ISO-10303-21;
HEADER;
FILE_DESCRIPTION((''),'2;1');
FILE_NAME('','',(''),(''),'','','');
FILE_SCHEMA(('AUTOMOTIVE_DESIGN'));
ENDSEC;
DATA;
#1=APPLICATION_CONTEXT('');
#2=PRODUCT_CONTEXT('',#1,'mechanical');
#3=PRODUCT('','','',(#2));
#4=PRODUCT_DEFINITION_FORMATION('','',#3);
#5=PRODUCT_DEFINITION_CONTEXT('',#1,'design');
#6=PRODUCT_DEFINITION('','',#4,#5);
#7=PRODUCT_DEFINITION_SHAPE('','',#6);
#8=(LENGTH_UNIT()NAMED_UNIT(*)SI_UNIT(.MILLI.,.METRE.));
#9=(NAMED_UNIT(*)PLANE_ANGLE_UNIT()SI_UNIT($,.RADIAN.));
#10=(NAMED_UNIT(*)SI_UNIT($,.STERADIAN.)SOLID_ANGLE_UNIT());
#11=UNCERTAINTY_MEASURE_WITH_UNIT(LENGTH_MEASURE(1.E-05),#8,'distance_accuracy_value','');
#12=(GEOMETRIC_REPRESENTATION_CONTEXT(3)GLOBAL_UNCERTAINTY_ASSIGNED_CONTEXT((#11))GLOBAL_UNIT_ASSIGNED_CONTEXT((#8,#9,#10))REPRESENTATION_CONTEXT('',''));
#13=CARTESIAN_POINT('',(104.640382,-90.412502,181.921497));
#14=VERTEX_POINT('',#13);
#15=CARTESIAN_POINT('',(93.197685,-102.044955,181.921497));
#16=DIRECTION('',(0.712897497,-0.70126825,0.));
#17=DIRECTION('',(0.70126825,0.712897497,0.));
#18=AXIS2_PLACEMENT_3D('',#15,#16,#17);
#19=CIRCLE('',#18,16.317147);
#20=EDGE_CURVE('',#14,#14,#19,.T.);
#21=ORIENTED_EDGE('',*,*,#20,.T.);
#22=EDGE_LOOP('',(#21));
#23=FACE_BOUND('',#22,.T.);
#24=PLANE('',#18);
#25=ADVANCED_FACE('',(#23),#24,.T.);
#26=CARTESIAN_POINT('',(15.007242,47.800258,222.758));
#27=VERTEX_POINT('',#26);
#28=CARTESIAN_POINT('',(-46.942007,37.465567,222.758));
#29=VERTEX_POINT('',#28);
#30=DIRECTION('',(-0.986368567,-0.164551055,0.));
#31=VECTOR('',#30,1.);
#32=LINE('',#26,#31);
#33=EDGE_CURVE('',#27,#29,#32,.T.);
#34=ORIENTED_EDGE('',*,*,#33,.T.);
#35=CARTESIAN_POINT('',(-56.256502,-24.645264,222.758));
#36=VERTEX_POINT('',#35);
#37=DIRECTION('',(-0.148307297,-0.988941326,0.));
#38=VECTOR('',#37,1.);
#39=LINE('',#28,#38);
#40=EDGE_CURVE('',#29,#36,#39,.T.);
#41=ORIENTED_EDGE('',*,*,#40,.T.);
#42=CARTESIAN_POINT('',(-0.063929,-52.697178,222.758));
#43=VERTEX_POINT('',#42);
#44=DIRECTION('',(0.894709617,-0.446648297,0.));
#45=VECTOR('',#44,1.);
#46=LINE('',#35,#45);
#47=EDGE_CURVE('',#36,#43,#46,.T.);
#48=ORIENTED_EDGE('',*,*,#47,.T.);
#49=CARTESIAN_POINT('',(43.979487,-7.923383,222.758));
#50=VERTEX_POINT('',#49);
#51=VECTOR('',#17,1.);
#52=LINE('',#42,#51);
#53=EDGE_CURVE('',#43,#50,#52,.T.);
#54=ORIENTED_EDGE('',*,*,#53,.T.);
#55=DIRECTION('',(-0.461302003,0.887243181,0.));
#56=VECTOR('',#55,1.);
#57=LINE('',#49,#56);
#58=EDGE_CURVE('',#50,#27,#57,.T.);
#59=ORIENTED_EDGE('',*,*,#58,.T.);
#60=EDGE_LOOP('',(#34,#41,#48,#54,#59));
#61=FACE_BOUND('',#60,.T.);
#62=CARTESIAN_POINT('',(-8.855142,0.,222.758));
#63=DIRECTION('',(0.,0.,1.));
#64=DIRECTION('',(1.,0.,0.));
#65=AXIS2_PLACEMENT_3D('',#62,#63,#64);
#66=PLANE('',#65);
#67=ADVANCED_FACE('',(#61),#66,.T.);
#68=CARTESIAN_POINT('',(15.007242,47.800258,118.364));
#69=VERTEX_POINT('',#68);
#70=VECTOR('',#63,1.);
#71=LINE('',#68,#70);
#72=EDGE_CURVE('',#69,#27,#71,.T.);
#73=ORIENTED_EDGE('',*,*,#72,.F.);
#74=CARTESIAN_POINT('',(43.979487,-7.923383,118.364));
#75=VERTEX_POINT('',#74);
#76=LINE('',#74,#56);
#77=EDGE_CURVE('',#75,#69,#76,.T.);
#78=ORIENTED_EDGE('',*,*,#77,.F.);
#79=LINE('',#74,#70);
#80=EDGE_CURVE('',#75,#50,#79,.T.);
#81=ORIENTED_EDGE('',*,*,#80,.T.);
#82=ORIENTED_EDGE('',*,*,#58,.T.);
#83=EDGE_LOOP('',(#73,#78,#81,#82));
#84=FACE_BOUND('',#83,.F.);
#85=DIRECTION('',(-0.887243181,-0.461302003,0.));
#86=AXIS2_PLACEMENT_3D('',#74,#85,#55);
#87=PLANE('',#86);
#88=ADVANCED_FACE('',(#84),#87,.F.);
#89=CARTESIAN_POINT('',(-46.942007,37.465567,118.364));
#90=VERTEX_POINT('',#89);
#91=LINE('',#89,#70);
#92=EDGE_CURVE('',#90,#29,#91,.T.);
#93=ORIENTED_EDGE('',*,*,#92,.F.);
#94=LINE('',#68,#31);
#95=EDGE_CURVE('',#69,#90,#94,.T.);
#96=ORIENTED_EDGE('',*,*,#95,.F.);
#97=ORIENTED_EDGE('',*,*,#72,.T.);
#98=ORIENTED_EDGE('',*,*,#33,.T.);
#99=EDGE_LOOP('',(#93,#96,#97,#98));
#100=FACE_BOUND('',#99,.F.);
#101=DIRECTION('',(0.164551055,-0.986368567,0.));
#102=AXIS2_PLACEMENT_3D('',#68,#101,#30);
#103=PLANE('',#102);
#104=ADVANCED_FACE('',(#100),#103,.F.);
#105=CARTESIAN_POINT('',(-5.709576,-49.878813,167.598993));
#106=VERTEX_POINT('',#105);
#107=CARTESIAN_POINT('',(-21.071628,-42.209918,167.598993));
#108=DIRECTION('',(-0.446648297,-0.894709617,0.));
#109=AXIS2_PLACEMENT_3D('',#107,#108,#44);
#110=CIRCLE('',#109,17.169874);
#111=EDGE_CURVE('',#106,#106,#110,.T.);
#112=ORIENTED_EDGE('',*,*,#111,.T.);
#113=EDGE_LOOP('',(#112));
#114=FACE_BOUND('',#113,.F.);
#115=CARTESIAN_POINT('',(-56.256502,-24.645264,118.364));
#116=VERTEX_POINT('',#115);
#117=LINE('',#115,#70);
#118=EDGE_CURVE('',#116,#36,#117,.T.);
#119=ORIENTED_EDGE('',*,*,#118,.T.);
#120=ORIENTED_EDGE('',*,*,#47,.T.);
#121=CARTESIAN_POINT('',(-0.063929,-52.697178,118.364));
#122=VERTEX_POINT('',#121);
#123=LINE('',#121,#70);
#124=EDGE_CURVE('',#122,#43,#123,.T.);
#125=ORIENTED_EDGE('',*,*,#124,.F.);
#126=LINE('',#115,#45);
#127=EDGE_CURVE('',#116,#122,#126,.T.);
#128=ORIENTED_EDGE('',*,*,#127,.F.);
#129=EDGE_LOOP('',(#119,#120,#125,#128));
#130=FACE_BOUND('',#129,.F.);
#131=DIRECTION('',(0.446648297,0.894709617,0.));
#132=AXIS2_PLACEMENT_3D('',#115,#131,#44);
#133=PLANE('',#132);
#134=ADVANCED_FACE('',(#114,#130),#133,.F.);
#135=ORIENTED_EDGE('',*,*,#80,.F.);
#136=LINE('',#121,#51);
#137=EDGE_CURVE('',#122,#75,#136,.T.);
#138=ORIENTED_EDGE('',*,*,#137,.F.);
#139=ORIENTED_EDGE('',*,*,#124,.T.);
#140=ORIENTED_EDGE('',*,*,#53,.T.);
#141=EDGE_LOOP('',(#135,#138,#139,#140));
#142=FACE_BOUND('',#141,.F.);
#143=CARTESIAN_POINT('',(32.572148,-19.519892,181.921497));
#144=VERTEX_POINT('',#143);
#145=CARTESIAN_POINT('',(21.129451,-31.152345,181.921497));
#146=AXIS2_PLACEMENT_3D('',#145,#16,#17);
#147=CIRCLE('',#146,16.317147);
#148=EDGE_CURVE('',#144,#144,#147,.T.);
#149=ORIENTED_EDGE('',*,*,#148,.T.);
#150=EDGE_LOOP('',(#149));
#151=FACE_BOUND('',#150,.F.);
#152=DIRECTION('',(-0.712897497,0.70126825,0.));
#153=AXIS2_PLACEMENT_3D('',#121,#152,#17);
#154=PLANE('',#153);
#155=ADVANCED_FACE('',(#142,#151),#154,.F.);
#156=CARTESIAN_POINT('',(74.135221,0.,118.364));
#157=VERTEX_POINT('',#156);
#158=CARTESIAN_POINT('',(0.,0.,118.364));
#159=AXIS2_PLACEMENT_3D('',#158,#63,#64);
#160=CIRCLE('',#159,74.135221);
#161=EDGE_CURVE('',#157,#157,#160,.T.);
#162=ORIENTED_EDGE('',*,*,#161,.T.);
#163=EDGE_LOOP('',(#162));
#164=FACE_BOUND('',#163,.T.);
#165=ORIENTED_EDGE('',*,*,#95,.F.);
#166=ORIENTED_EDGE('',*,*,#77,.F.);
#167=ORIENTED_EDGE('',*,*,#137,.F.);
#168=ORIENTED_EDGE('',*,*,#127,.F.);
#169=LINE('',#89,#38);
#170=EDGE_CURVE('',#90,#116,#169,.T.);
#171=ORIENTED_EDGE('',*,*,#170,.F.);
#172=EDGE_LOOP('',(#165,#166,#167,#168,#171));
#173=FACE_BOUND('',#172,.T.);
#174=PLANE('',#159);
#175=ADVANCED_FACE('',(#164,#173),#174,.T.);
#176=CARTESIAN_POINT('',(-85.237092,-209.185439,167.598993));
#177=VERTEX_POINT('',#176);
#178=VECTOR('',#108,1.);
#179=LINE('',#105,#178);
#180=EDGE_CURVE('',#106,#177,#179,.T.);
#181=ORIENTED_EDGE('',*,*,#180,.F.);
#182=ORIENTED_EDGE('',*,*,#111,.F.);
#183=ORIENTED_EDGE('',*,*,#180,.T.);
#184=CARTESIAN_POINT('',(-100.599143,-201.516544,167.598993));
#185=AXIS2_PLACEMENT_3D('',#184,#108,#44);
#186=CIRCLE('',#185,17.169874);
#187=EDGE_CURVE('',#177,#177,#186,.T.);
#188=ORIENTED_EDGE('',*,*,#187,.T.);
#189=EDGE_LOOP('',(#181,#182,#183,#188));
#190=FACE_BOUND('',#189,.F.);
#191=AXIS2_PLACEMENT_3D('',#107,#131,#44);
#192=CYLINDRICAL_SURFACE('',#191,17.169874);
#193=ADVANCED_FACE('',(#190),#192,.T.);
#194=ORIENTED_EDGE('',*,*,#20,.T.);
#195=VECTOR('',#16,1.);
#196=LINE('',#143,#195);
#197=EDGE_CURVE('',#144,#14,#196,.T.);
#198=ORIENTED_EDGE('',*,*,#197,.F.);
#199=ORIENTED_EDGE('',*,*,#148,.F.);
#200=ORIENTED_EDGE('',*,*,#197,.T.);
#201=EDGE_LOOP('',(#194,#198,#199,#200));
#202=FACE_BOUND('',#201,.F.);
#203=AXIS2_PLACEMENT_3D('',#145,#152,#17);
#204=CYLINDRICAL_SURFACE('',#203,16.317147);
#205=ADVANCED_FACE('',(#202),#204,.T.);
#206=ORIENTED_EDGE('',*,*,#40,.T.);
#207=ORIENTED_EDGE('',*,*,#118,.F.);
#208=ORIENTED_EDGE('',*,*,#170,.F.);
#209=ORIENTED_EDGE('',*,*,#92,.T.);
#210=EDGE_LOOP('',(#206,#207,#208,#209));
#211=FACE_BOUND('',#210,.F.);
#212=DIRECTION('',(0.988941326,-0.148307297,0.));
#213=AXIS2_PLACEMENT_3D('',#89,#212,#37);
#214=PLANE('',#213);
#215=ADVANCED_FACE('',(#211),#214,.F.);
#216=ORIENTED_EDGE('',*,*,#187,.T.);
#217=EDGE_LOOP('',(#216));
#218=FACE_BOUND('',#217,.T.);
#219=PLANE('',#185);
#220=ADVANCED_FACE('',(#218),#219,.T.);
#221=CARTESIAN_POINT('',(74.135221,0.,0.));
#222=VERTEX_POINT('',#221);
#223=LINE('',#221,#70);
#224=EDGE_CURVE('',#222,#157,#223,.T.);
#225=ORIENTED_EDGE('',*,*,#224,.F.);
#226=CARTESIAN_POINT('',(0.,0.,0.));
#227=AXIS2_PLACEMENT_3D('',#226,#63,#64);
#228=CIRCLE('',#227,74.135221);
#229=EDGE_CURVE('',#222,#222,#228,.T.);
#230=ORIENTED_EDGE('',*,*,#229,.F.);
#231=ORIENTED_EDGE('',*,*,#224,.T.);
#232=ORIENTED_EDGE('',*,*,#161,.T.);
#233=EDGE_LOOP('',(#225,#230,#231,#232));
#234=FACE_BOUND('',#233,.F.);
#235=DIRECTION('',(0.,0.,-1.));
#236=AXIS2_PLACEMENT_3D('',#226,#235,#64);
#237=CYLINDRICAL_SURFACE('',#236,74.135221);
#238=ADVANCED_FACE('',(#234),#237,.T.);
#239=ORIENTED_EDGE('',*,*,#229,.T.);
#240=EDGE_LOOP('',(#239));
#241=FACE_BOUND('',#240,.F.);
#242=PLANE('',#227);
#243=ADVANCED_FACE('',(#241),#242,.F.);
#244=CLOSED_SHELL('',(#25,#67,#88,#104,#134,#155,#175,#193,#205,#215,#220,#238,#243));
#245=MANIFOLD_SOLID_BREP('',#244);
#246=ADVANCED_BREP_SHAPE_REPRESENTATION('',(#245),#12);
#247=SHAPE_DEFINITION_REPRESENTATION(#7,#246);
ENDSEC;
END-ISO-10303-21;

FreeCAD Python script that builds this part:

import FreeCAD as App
import Part
import Sketcher

V = App.Vector
Q = App.Units.Quantity

doc = App.newDocument("Part")
body = doc.addObject("PartDesign::Body", "Body")

# Sketch on XY plane
sketch1 = body.newObject("Sketcher::SketchObject", "Sketch")
sketch1.AttachmentSupport = (doc.getObject("XY_Plane"), [""])
sketch1.MapMode = "FlatFace"
sketch1.addGeometry(Part.Circle(V(0, 0, 0), V(0, 0, 1), 74), False)
sketch1.addConstraint([
    Sketcher.Constraint("Coincident", 0, 3, -1, 1),
    Sketcher.Constraint("Diameter", 0, Q("148.270442 mm")),
])
pad1 = body.newObject("PartDesign::Pad", "Pad")
pad1.Profile = sketch1
pad1.Length = Q("4.66 in")

# Sketch on XY plane
sketch2 = body.newObject("Sketcher::SketchObject", "Sketch001")
sketch2.AttachmentSupport = (doc.getObject("XY_Plane"), [""])
sketch2.MapMode = "FlatFace"
sketch2.AttachmentOffset = App.Placement(V(0, 0, 4.66 * 25.4), App.Rotation())
sketch2.addGeometry([
    Part.LineSegment(V(0, -53, 0), V(44, -8, 0)),  # 0
    Part.LineSegment(V(44, -8, 0), V(15, 48, 0)),  # 1
    Part.LineSegment(V(15, 48, 0), V(-47, 37, 0)),  # 2
    Part.LineSegment(V(-47, 37, 0), V(-56, -25, 0)),  # 3
    Part.LineSegment(V(-56, -25, 0), V(0, -53, 0)),  # 4
], False)
sketch2.addConstraint([
    Sketcher.Constraint("Coincident", 0, 2, 1, 1),
    Sketcher.Constraint("Coincident", 1, 2, 2, 1),
    Sketcher.Constraint("Coincident", 2, 2, 3, 1),
    Sketcher.Constraint("Coincident", 3, 2, 4, 1),
    Sketcher.Constraint("Coincident", 4, 2, 0, 1),
    Sketcher.Constraint("Equal", 0, 1),
    Sketcher.Constraint("Equal", 1, 2),
    Sketcher.Constraint("Equal", 2, 3),
    Sketcher.Constraint("Equal", 3, 4),
    Sketcher.Constraint("DistanceY", -1, 1, 1, 2, Q("1.8818999 in")),
    Sketcher.Constraint("DistanceX", -1, 1, 1, 2, Q("15.007242 mm")),
    Sketcher.Constraint("DistanceX", 4, 2, -1, 1, Q("0.063929 mm")),
    Sketcher.Constraint("DistanceY", 4, 2, -1, 1, Q("52.697178 mm")),
    Sketcher.Constraint("DistanceY", 0, 2, 1, 2, Q("55.723641 mm")),
    Sketcher.Constraint("DistanceX", 2, 2, 1, 2, Q("61.949248 mm")),
])
pad2 = body.newObject("PartDesign::Pad", "Pad001")
pad2.Profile = sketch2
pad2.Length = Q("4.11 in")

# Sketch on an angled plane
sketch3 = body.newObject("Sketcher::SketchObject", "Sketch002")
sketch3.Placement = App.Placement(V(26.312536, -25.883309, 0), App.Rotation(V(0.70126825, 0.712897497, 0), V(0, 0, 1), V(0.712897497, -0.70126825, 0), "ZXY"))
sketch3.addGeometry(Part.Circle(V(-7, 182, 0), V(0, 0, 1), 16), False)
sketch3.addConstraint([
    Sketcher.Constraint("Diameter", 0, Q("32.634294 mm")),
    Sketcher.Constraint("DistanceX", 0, 3, -1, 1, Q("7.391016 mm")),
    Sketcher.Constraint("DistanceY", -1, 1, 0, 3, Q("181.921497 mm")),
])
pad3 = body.newObject("PartDesign::Pad", "Pad002")
pad3.Profile = sketch3
pad3.Length = Q("3.98 in")

# Sketch on an angled plane
sketch4 = body.newObject("Sketcher::SketchObject", "Sketch003")
sketch4.Placement = App.Placement(V(-21.071628, -42.209918, 0), App.Rotation(V(0.894709617, -0.446648297, 0), V(0, 0, 1), V(-0.446648297, -0.894709617, 0), "ZXY"))
sketch4.addGeometry(Part.Circle(V(0, 168, 0), V(0, 0, 1), 17), False)
sketch4.addConstraint([
    Sketcher.Constraint("PointOnObject", 0, 3, -2),
    Sketcher.Constraint("Diameter", 0, Q("34.339749 mm")),
    Sketcher.Constraint("DistanceY", -1, 1, 0, 3, Q("167.598993 mm")),
])
pad4 = body.newObject("PartDesign::Pad", "Pad003")
pad4.Profile = sketch4
pad4.Length = Q("7.01 in")

doc.recompute()
